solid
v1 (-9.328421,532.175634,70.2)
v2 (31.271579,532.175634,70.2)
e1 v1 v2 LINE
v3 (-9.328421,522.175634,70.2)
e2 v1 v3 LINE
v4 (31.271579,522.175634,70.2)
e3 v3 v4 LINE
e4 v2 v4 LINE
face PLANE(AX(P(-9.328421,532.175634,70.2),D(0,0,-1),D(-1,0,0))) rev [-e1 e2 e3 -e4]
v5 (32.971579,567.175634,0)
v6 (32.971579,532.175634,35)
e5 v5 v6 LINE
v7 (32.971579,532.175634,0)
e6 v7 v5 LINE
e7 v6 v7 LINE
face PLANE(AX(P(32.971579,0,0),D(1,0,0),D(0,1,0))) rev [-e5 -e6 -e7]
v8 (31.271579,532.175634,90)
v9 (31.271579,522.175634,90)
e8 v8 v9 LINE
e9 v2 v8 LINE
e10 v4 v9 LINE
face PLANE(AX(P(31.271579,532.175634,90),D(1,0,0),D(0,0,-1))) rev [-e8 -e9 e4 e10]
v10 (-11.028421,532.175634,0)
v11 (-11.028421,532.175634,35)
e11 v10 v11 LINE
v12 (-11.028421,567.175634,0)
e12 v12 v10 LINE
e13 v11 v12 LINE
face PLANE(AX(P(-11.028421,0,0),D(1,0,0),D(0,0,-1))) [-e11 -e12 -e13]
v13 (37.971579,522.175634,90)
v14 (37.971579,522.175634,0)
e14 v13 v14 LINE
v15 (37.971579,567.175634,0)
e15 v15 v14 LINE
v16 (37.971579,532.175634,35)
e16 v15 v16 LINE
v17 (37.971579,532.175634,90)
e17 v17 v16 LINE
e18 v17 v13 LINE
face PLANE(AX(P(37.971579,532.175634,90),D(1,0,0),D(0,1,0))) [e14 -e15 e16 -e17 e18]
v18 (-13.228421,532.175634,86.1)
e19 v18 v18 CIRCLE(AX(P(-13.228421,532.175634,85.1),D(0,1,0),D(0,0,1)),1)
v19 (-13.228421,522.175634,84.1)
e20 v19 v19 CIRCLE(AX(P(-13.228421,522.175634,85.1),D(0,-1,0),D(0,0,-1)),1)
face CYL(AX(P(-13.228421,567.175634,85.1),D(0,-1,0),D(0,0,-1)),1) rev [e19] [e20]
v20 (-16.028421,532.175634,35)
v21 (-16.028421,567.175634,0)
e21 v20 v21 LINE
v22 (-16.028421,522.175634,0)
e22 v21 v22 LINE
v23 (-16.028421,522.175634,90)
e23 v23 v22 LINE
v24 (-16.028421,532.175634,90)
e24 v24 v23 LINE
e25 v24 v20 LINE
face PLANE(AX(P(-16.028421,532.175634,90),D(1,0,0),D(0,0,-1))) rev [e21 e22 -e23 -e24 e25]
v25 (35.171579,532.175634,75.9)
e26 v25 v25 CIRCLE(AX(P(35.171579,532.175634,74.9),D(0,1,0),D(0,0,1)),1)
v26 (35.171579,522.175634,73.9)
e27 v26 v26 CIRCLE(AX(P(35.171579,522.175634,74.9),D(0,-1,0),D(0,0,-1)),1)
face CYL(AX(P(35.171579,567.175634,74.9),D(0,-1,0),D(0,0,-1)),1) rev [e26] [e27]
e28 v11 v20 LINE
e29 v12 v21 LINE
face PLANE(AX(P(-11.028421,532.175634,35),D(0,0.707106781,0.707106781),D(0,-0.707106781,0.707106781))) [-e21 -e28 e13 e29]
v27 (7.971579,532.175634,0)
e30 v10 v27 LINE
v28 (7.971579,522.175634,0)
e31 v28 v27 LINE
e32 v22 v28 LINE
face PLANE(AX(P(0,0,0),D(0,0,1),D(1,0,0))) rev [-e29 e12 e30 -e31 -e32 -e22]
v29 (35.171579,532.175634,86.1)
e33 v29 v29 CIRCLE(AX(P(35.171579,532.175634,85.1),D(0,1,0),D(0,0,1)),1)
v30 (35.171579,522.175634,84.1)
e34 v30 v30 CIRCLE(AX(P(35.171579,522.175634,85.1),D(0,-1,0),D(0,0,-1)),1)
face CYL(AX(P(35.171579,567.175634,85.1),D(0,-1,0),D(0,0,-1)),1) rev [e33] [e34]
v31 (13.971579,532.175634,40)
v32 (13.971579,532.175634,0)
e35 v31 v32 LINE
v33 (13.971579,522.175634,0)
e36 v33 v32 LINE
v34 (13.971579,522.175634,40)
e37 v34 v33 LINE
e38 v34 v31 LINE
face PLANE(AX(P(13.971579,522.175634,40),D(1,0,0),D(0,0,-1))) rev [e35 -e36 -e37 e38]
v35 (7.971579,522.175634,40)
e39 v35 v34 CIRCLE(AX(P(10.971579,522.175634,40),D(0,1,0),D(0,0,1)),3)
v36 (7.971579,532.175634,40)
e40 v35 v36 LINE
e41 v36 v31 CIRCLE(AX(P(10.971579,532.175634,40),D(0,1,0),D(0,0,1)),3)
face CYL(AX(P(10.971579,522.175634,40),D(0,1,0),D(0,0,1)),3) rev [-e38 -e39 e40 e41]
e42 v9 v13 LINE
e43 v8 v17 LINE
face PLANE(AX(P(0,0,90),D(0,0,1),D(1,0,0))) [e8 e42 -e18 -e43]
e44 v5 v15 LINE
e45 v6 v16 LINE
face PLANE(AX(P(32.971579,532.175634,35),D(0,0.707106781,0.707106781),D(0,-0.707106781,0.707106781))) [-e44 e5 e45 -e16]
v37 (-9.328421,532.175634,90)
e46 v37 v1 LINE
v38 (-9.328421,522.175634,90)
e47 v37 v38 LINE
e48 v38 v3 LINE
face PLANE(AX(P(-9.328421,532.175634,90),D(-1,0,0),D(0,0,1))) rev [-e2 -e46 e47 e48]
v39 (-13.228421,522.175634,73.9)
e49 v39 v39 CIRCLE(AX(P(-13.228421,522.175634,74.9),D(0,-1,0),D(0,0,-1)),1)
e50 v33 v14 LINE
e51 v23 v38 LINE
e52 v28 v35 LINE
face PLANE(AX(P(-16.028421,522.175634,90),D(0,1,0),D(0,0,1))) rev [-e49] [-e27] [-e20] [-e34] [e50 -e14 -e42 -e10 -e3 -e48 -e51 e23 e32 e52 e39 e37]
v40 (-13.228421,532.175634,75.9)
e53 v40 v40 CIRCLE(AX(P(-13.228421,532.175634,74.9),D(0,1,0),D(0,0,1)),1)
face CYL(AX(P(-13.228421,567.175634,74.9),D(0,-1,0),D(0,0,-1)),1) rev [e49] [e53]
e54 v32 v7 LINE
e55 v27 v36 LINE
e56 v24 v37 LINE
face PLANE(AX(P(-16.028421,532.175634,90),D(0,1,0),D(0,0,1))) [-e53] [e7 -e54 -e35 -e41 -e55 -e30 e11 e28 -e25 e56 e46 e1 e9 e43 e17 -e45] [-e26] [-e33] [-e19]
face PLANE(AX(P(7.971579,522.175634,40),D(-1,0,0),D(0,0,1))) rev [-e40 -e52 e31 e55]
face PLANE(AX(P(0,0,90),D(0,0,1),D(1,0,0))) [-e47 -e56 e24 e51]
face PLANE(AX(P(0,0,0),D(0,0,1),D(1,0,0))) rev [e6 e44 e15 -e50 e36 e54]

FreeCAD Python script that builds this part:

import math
import FreeCAD as App
import Part
import Sketcher
from FreeCAD import Vector

doc = App.newDocument("Part")
body = doc.addObject("PartDesign::Body", "Body")

# Sketch on XY plane
sketch1 = body.newObject("Sketcher::SketchObject", "Sketch")
sketch1.AttachmentSupport = (doc.getObject("XY_Plane"), [""])
sketch1.MapMode = "FlatFace"
sketch1.addGeometry([
    Part.LineSegment(Vector(-16, 532, 0), Vector(-16, 522, 0)),
    Part.LineSegment(Vector(-16, 522, 0), Vector(38, 522, 0)),
    Part.LineSegment(Vector(38, 522, 0), Vector(38, 532, 0)),
    Part.LineSegment(Vector(38, 532, 0), Vector(-16, 532, 0)),
], False)
sketch1.addConstraint([
    Sketcher.Constraint("Coincident", 0, 2, 1, 1),
    Sketcher.Constraint("Coincident", 1, 2, 2, 1),
    Sketcher.Constraint("Coincident", 2, 2, 3, 1),
    Sketcher.Constraint("Coincident", 3, 2, 0, 1),
    Sketcher.Constraint("Vertical", 0),
    Sketcher.Constraint("Horizontal", 1),
    Sketcher.Constraint("Vertical", 2),
    Sketcher.Constraint("Horizontal", 3),
    Sketcher.Constraint("DistanceX", 1, 1, 1, 2, 54.0),
    Sketcher.Constraint("DistanceY", 0, 2, 0, 1, 10.0),
    Sketcher.Constraint("DistanceX", 0, 2, -1, 1, 16.028421),
    Sketcher.Constraint("DistanceY", -1, 1, 0, 2, 522.175634),
])
pad1 = body.newObject("PartDesign::Pad", "Pad")
pad1.Profile = sketch1
pad1.Length = 90

# Sketch on XZ plane
sketch2 = body.newObject("Sketcher::SketchObject", "Sketch001")
sketch2.AttachmentSupport = (doc.getObject("XZ_Plane"), [""])
sketch2.MapMode = "FlatFace"
sketch2.AttachmentOffset = App.Placement(Vector(0, 0, -522.175634), App.Rotation())
sketch2.addGeometry([
    Part.LineSegment(Vector(-9, 90, 0), Vector(-9, 70, 0)),
    Part.LineSegment(Vector(-9, 70, 0), Vector(31, 70, 0)),
    Part.LineSegment(Vector(31, 70, 0), Vector(31, 90, 0)),
    Part.LineSegment(Vector(31, 90, 0), Vector(-9, 90, 0)),
], False)
sketch2.addConstraint([
    Sketcher.Constraint("Coincident", 0, 2, 1, 1),
    Sketcher.Constraint("Coincident", 1, 2, 2, 1),
    Sketcher.Constraint("Coincident", 2, 2, 3, 1),
    Sketcher.Constraint("Coincident", 3, 2, 0, 1),
    Sketcher.Constraint("Vertical", 0),
    Sketcher.Constraint("Horizontal", 1),
    Sketcher.Constraint("Vertical", 2),
    Sketcher.Constraint("Horizontal", 3),
    Sketcher.Constraint("DistanceX", 1, 1, 1, 2, 40.6),
    Sketcher.Constraint("DistanceY", 0, 2, 0, 1, 19.8),
    Sketcher.Constraint("DistanceY", -1, 1, 2, 2, 90.0),
    Sketcher.Constraint("DistanceX", 0, 2, -1, 1, 9.328421),
])
pocket1 = body.newObject("PartDesign::Pocket", "Pocket")
pocket1.Profile = sketch2
pocket1.Type = "ThroughAll"

# Sketch on XZ plane
sketch3 = body.newObject("Sketcher::SketchObject", "Sketch002")
sketch3.AttachmentSupport = (doc.getObject("XZ_Plane"), [""])
sketch3.MapMode = "FlatFace"
sketch3.AttachmentOffset = App.Placement(Vector(0, 0, -532.175634), App.Rotation())
sketch3.addGeometry([
    Part.LineSegment(Vector(8, 0, 0), Vector(8, 40, 0)),
    Part.ArcOfCircle(Part.Circle(Vector(11, 40, 0), Vector(0, 0, 1), 3), math.radians(0), math.radians(180)),
    Part.LineSegment(Vector(14, 40, 0), Vector(14, 0, 0)),
    Part.ArcOfCircle(Part.Circle(Vector(11, 0, 0), Vector(0, 0, 1), 3), math.radians(180), math.radians(360)),
], False)
sketch3.addConstraint([
    Sketcher.Constraint("Tangent", 0, 2, 1, 2),
    Sketcher.Constraint("Tangent", 1, 1, 2, 1),
    Sketcher.Constraint("Tangent", 2, 2, 3, 2),
    Sketcher.Constraint("Tangent", 3, 1, 0, 1),
    Sketcher.Constraint("Vertical", 0),
    Sketcher.Constraint("Vertical", 2),
    Sketcher.Constraint("PointOnObject", 3, 3, -1),
    Sketcher.Constraint("Radius", 1, 3.0),
    Sketcher.Constraint("DistanceY", 0, 1, 0, 2, 40.0),
    Sketcher.Constraint("DistanceX", -1, 1, 1, 3, 10.971579),
])
pocket2 = body.newObject("PartDesign::Pocket", "Pocket001")
pocket2.Profile = sketch3
pocket2.Type = "ThroughAll"
pocket2.Reversed = True

# Sketch on YZ plane
sketch4 = body.newObject("Sketcher::SketchObject", "Sketch003")
sketch4.AttachmentSupport = (doc.getObject("YZ_Plane"), [""])
sketch4.MapMode = "FlatFace"
sketch4.AttachmentOffset = App.Placement(Vector(0, 0, -16.028421), App.Rotation())
sketch4.addGeometry([
    Part.LineSegment(Vector(532, 35, 0), Vector(567, 0, 0)),
    Part.LineSegment(Vector(567, 0, 0), Vector(532, 0, 0)),
    Part.LineSegment(Vector(532, 0, 0), Vector(532, 35, 0)),
], False)
sketch4.addConstraint([
    Sketcher.Constraint("Coincident", 0, 2, 1, 1),
    Sketcher.Constraint("Coincident", 1, 2, 2, 1),
    Sketcher.Constraint("Coincident", 2, 2, 0, 1),
    Sketcher.Constraint("Horizontal", 1),
    Sketcher.Constraint("Vertical", 2),
    Sketcher.Constraint("PointOnObject", 0, 2, -1),
    Sketcher.Constraint("Equal", 1, 2),
    Sketcher.Constraint("DistanceX", 1, 2, 1, 1, 35.0),
    Sketcher.Constraint("DistanceX", -1, 1, 0, 2, 567.175634),
])
pad2 = body.newObject("PartDesign::Pad", "Pad001")
pad2.Profile = sketch4
pad2.Length = 5

# Sketch on YZ plane
sketch5 = body.newObject("Sketcher::SketchObject", "Sketch004")
sketch5.AttachmentSupport = (doc.getObject("YZ_Plane"), [""])
sketch5.MapMode = "FlatFace"
sketch5.AttachmentOffset = App.Placement(Vector(0, 0, 37.971579), App.Rotation())
sketch5.addGeometry([
    Part.LineSegment(Vector(567, 0, 0), Vector(532, 35, 0)),
    Part.LineSegment(Vector(532, 35, 0), Vector(532, 0, 0)),
    Part.LineSegment(Vector(532, 0, 0), Vector(567, 0, 0)),
], False)
sketch5.addConstraint([
    Sketcher.Constraint("Coincident", 0, 2, 1, 1),
    Sketcher.Constraint("Coincident", 1, 2, 2, 1),
    Sketcher.Constraint("Coincident", 2, 2, 0, 1),
    Sketcher.Constraint("Vertical", 1),
    Sketcher.Constraint("Horizontal", 2),
    Sketcher.Constraint("PointOnObject", 1, 2, -1),
    Sketcher.Constraint("Equal", 2, 1),
    Sketcher.Constraint("DistanceX", 2, 1, 2, 2, 35.0),
    Sketcher.Constraint("DistanceX", -1, 1, 0, 2, 532.175634),
])
pad3 = body.newObject("PartDesign::Pad", "Pad002")
pad3.Profile = sketch5
pad3.Length = 5
pad3.Reversed = True

# Sketch on XZ plane
sketch6 = body.newObject("Sketcher::SketchObject", "Sketch005")
sketch6.AttachmentSupport = (doc.getObject("XZ_Plane"), [""])
sketch6.MapMode = "FlatFace"
sketch6.AttachmentOffset = App.Placement(Vector(0, 0, -522.175634), App.Rotation())
sketch6.addGeometry([
    Part.Circle(Vector(-13.2, 85.1, 0), Vector(0, 0, 1), 1),
    Part.Circle(Vector(-13.2, 74.9, 0), Vector(0, 0, 1), 1),
    Part.Circle(Vector(35.2, 74.9, 0), Vector(0, 0, 1), 1),
    Part.Circle(Vector(35.2, 85.1, 0), Vector(0, 0, 1), 1),
], False)
sketch6.addConstraint([
    Sketcher.Constraint("Equal", 0, 1),
    Sketcher.Constraint("Equal", 1, 2),
    Sketcher.Constraint("Equal", 2, 3),
    Sketcher.Constraint("Horizontal", 1, 3, 2, 3),
    Sketcher.Constraint("Horizontal", 0, 3, 3, 3),
    Sketcher.Constraint("Vertical", 0, 3, 1, 3),
    Sketcher.Constraint("Vertical", 2, 3, 3, 3),
    Sketcher.Constraint("Diameter", 0, 2.0),
    Sketcher.Constraint("DistanceY", -1, 1, 0, 3, 85.1),
    Sketcher.Constraint("DistanceY", -1, 1, 1, 3, 74.9),
    Sketcher.Constraint("DistanceX", 1, 3, 2, 3, 48.4),
    Sketcher.Constraint("DistanceX", 0, 3, -1, 1, 13.228421),
])
pocket3 = body.newObject("PartDesign::Pocket", "Pocket002")
pocket3.Profile = sketch6
pocket3.Type = "ThroughAll"

doc.recompute()
